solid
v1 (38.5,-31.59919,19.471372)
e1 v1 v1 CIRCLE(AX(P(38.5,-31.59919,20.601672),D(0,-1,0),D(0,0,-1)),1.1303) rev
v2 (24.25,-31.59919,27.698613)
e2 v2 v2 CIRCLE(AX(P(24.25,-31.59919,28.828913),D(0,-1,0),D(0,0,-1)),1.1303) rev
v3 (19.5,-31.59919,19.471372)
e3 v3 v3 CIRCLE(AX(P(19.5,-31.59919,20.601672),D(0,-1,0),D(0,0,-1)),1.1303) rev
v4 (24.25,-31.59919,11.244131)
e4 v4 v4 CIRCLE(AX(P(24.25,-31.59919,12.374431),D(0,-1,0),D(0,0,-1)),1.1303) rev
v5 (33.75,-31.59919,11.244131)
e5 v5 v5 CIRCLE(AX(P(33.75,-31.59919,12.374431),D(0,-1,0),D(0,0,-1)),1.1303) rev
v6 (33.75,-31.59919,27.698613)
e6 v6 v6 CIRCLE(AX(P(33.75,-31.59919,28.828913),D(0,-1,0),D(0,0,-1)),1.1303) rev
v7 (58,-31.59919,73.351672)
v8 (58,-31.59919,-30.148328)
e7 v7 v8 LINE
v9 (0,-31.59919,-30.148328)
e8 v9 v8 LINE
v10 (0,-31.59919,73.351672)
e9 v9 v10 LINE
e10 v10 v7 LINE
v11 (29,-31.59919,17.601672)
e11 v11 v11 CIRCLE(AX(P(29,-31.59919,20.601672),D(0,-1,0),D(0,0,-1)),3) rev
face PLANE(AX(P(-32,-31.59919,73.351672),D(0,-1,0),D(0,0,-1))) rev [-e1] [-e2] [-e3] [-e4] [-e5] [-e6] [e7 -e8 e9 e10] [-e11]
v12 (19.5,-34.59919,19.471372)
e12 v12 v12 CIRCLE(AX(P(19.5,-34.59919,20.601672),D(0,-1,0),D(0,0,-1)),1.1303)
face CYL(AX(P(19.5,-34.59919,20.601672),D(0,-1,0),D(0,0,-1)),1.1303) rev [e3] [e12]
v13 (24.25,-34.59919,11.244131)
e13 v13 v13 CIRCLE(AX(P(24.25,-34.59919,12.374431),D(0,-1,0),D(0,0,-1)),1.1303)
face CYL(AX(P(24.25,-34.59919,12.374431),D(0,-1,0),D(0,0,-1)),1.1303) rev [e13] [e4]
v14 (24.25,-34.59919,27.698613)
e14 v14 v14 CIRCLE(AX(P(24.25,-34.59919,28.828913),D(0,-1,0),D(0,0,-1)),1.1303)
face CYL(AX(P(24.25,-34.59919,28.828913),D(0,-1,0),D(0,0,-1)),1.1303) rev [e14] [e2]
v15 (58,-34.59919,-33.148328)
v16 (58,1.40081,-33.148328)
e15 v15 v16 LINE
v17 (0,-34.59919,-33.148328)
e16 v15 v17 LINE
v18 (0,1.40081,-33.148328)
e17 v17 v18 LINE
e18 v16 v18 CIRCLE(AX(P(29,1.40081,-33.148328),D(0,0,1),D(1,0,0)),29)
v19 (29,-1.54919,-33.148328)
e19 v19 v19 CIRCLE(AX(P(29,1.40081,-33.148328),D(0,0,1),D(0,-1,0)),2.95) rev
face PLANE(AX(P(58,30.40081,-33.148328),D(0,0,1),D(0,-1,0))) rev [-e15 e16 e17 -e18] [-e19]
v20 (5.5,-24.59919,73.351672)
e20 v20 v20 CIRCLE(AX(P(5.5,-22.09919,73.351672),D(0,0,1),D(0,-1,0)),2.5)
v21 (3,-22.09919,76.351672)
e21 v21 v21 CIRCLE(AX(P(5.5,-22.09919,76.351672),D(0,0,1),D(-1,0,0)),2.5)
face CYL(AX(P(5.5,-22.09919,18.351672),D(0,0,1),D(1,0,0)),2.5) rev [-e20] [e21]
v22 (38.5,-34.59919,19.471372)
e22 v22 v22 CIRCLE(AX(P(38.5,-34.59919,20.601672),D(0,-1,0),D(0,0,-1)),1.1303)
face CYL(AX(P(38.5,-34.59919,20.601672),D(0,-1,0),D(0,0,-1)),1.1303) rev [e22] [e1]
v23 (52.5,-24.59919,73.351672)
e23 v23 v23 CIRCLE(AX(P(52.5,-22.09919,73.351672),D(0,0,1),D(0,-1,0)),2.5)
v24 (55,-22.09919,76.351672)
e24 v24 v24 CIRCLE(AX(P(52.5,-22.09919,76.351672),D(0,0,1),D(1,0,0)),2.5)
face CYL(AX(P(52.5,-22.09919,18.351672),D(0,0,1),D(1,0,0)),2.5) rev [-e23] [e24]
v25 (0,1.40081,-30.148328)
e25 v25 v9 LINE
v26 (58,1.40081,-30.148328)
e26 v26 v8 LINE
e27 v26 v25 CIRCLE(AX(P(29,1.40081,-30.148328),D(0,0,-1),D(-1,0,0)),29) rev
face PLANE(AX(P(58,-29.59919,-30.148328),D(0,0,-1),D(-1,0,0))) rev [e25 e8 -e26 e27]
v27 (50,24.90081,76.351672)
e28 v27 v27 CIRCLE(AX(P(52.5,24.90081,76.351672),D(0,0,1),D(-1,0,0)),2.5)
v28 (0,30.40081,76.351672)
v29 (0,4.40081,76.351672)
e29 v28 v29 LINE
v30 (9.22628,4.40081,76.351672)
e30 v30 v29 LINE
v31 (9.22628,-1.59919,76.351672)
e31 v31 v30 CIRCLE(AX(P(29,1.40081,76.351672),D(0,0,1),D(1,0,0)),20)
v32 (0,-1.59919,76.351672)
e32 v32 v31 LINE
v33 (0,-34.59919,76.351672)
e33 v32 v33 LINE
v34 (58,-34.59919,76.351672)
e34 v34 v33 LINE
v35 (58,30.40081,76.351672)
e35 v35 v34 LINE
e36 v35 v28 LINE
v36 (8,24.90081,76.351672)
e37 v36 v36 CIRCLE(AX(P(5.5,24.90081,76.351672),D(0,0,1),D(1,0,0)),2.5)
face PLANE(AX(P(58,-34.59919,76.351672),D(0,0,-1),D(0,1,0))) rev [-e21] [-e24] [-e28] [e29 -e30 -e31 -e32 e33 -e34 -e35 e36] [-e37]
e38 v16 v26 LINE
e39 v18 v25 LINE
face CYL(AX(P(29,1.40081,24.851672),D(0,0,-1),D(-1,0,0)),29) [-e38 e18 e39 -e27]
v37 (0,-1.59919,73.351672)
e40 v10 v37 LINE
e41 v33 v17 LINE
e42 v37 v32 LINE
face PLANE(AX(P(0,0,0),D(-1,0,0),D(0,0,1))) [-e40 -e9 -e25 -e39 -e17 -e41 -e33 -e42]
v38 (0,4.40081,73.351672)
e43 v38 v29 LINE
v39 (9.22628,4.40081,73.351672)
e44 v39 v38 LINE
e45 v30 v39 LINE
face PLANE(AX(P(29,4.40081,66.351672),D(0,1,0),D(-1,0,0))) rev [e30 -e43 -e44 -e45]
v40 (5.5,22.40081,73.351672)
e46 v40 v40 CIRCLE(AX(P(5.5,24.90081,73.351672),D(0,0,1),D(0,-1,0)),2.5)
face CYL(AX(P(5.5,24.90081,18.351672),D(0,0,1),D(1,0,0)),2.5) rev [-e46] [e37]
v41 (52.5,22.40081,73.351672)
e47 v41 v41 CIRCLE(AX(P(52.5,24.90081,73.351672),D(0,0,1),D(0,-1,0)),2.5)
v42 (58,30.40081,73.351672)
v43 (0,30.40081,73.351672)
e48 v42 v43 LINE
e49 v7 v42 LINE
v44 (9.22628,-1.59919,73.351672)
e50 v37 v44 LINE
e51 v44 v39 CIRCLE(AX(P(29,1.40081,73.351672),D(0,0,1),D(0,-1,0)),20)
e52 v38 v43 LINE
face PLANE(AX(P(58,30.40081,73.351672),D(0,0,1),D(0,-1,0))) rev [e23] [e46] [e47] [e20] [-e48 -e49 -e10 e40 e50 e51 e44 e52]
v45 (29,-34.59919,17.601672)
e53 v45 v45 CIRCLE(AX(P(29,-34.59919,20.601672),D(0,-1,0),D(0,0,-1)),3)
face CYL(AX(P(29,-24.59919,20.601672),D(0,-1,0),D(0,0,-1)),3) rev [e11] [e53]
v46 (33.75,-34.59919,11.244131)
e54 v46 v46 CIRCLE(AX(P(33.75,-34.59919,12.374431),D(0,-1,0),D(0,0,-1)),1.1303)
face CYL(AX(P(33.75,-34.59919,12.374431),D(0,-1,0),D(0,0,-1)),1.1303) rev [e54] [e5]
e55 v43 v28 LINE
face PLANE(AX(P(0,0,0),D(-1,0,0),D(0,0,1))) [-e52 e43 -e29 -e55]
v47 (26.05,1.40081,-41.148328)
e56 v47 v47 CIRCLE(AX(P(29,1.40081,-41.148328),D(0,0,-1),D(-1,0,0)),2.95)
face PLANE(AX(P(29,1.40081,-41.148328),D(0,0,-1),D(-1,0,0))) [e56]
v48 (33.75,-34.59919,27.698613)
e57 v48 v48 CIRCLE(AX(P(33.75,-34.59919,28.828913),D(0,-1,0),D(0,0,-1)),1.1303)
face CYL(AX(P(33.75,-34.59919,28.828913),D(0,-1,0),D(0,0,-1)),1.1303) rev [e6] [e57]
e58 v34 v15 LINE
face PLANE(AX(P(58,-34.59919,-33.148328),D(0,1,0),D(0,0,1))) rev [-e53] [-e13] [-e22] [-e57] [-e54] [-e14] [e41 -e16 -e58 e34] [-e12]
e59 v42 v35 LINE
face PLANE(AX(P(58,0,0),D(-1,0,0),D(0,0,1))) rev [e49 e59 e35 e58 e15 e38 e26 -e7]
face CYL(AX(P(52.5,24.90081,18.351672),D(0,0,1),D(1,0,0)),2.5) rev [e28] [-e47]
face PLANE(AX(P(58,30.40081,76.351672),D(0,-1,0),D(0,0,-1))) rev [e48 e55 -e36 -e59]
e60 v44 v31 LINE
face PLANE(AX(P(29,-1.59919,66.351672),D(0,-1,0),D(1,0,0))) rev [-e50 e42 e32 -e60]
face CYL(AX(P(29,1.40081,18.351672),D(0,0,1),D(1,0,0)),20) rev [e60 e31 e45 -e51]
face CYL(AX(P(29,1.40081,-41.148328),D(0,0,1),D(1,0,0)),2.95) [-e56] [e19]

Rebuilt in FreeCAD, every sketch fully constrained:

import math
import FreeCAD as App
import Part
import Sketcher

doc = App.newDocument("Part")
body = doc.addObject("PartDesign::Body", "Body")

# Sketch on YZ plane
sketch1 = doc.addObject("Sketcher::SketchObject", "Sketch")
body.addObject(sketch1)
sketch1.AttachmentSupport = (doc.YZ_Plane, [""])
sketch1.MapMode = "FlatFace"
sketch1.addGeometry(Part.LineSegment(App.Vector(-29.59919, 73.351672, 0), App.Vector(30.40081, 73.351672, 0)), False)
sketch1.addGeometry(Part.LineSegment(App.Vector(30.40081, 73.351672, 0), App.Vector(30.40081, 76.351672, 0)), False)
sketch1.addGeometry(Part.LineSegment(App.Vector(30.40081, 76.351672, 0), App.Vector(-34.59919, 76.351672, 0)), False)
sketch1.addGeometry(Part.LineSegment(App.Vector(-34.59919, 76.351672, 0), App.Vector(-34.59919, -33.148328, 0)), False)
sketch1.addGeometry(Part.LineSegment(App.Vector(-34.59919, -33.148328, 0), App.Vector(30.40081, -33.148328, 0)), False)
sketch1.addGeometry(Part.LineSegment(App.Vector(30.40081, -33.148328, 0), App.Vector(30.40081, -30.148328, 0)), False)
sketch1.addGeometry(Part.LineSegment(App.Vector(30.40081, -30.148328, 0), App.Vector(-29.59919, -30.148328, 0)), False)
sketch1.addGeometry(Part.LineSegment(App.Vector(-29.59919, -30.148328, 0), App.Vector(-29.59919, 73.351672, 0)), False)
sketch1.addConstraint(Sketcher.Constraint("Coincident", 0, 2, 1, 1))
sketch1.addConstraint(Sketcher.Constraint("Coincident", 1, 2, 2, 1))
sketch1.addConstraint(Sketcher.Constraint("Coincident", 2, 2, 3, 1))
sketch1.addConstraint(Sketcher.Constraint("Coincident", 3, 2, 4, 1))
sketch1.addConstraint(Sketcher.Constraint("Coincident", 4, 2, 5, 1))
sketch1.addConstraint(Sketcher.Constraint("Coincident", 5, 2, 6, 1))
sketch1.addConstraint(Sketcher.Constraint("Coincident", 6, 2, 7, 1))
sketch1.addConstraint(Sketcher.Constraint("Coincident", 7, 2, 0, 1))
sketch1.addConstraint(Sketcher.Constraint("Horizontal", 0))
sketch1.addConstraint(Sketcher.Constraint("Vertical", 1))
sketch1.addConstraint(Sketcher.Constraint("Horizontal", 2))
sketch1.addConstraint(Sketcher.Constraint("Vertical", 3))
sketch1.addConstraint(Sketcher.Constraint("Horizontal", 4))
sketch1.addConstraint(Sketcher.Constraint("Vertical", 5))
sketch1.addConstraint(Sketcher.Constraint("Horizontal", 6))
sketch1.addConstraint(Sketcher.Constraint("Vertical", 7))
sketch1.addConstraint(Sketcher.Constraint("Vertical", 1, 2, 4, 2))
sketch1.addConstraint(Sketcher.Constraint("Equal", 1, 5))
sketch1.addConstraint(Sketcher.Constraint("DistanceX", 0, 1, 0, 2, 60.0))
sketch1.addConstraint(Sketcher.Constraint("DistanceX", 2, 2, 2, 1, 65.0))
sketch1.addConstraint(Sketcher.Constraint("DistanceY", 1, 1, 1, 2, 3.0))
sketch1.addConstraint(Sketcher.Constraint("DistanceY", 3, 2, 3, 1, 109.5))
sketch1.addConstraint(Sketcher.Constraint("DistanceX", -1, 1, 0, 2, 30.40081))
sketch1.addConstraint(Sketcher.Constraint("DistanceY", -1, 1, 0, 2, 73.351672))
pad1 = doc.addObject("PartDesign::Pad", "Pad")
body.addObject(pad1)
pad1.Profile = sketch1
pad1.Length = 58

# Sketch on XY plane
sketch2 = doc.addObject("Sketcher::SketchObject", "Sketch001")
body.addObject(sketch2)
sketch2.AttachmentSupport = (doc.XY_Plane, [""])
sketch2.MapMode = "FlatFace"
sketch2.AttachmentOffset = App.Placement(App.Vector(0, 0, 76.351672), App.Rotation())
sketch2.addGeometry(Part.Circle(App.Vector(5.5, 24.90081, 0), App.Vector(0, 0, 1), 2.5), False)
sketch2.addGeometry(Part.Circle(App.Vector(52.5, 24.90081, 0), App.Vector(0, 0, 1), 2.5), False)
sketch2.addGeometry(Part.Circle(App.Vector(52.5, -22.09919, 0), App.Vector(0, 0, 1), 2.5), False)
sketch2.addGeometry(Part.Circle(App.Vector(5.5, -22.09919, 0), App.Vector(0, 0, 1), 2.5), False)
sketch2.addGeometry(Part.Circle(App.Vector(29, 1.40081, 0), App.Vector(0, 0, 1), 20), False)
sketch2.addConstraint(Sketcher.Constraint("Equal", 0, 1))
sketch2.addConstraint(Sketcher.Constraint("Equal", 1, 2))
sketch2.addConstraint(Sketcher.Constraint("Equal", 2, 3))
sketch2.addConstraint(Sketcher.Constraint("Horizontal", 0, 3, 1, 3))
sketch2.addConstraint(Sketcher.Constraint("Horizontal", 2, 3, 3, 3))
sketch2.addConstraint(Sketcher.Constraint("Vertical", 1, 3, 2, 3))
sketch2.addConstraint(Sketcher.Constraint("Vertical", 0, 3, 3, 3))
sketch2.addConstraint(Sketcher.Constraint("Diameter", 0, 5.0))
sketch2.addConstraint(Sketcher.Constraint("Diameter", 4, 40.0))
sketch2.addConstraint(Sketcher.Constraint("DistanceX", -1, 1, 4, 3, 29.0))
sketch2.addConstraint(Sketcher.Constraint("DistanceX", 0, 3, 1, 3, 47.0))
sketch2.addConstraint(Sketcher.Constraint("DistanceY", 2, 3, 1, 3, 47.0))
sketch2.addConstraint(Sketcher.Constraint("DistanceX", -1, 1, 0, 3, 5.5))
sketch2.addConstraint(Sketcher.Constraint("DistanceY", 4, 3, 0, 3, 23.5))
sketch2.addConstraint(Sketcher.Constraint("DistanceY", -1, 1, 0, 3, 24.90081))
pocket1 = doc.addObject("PartDesign::Pocket", "Pocket")
body.addObject(pocket1)
pocket1.Profile = sketch2
pocket1.Length = 58

# Sketch on XY plane
sketch3 = doc.addObject("Sketcher::SketchObject", "Sketch002")
body.addObject(sketch3)
sketch3.AttachmentSupport = (doc.XY_Plane, [""])
sketch3.MapMode = "FlatFace"
sketch3.AttachmentOffset = App.Placement(App.Vector(0, 0, -33.148328), App.Rotation())
sketch3.addGeometry(Part.LineSegment(App.Vector(29, 30.40081, 0), App.Vector(58, 30.40081, 0)), False)
sketch3.addGeometry(Part.LineSegment(App.Vector(58, 30.40081, 0), App.Vector(58, 1.40081, 0)), False)
sketch3.addGeometry(Part.ArcOfCircle(Part.Circle(App.Vector(29, 1.40081, 0), App.Vector(0, 0, 1), 29), math.radians(0), math.radians(90)), False)
sketch3.addConstraint(Sketcher.Constraint("Coincident", 0, 2, 1, 1))
sketch3.addConstraint(Sketcher.Constraint("Tangent", 1, 2, 2, 1))
sketch3.addConstraint(Sketcher.Constraint("Tangent", 2, 2, 0, 1))
sketch3.addConstraint(Sketcher.Constraint("Horizontal", 0))
sketch3.addConstraint(Sketcher.Constraint("Vertical", 1))
sketch3.addConstraint(Sketcher.Constraint("Radius", 2, 29.0))
sketch3.addConstraint(Sketcher.Constraint("DistanceX", -1, 1, 2, 3, 29.0))
sketch3.addConstraint(Sketcher.Constraint("DistanceY", -1, 1, 2, 3, 1.40081))
pocket2 = doc.addObject("PartDesign::Pocket", "Pocket001")
body.addObject(pocket2)
pocket2.Profile = sketch3
pocket2.Length = 58
pocket2.Reversed = True

# Sketch on XY plane
sketch4 = doc.addObject("Sketcher::SketchObject", "Sketch003")
body.addObject(sketch4)
sketch4.AttachmentSupport = (doc.XY_Plane, [""])
sketch4.MapMode = "FlatFace"
sketch4.AttachmentOffset = App.Placement(App.Vector(0, 0, -33.148328), App.Rotation())
sketch4.addGeometry(Part.LineSegment(App.Vector(0, 30.40081, 0), App.Vector(29, 30.40081, 0)), False)
sketch4.addGeometry(Part.ArcOfCircle(Part.Circle(App.Vector(29, 1.40081, 0), App.Vector(0, 0, 1), 29), math.radians(90), math.radians(180)), False)
sketch4.addGeometry(Part.LineSegment(App.Vector(0, 1.40081, 0), App.Vector(0, 30.40081, 0)), False)
sketch4.addConstraint(Sketcher.Constraint("Tangent", 0, 2, 1, 1))
sketch4.addConstraint(Sketcher.Constraint("Tangent", 1, 2, 2, 1))
sketch4.addConstraint(Sketcher.Constraint("Coincident", 2, 2, 0, 1))
sketch4.addConstraint(Sketcher.Constraint("Horizontal", 0))
sketch4.addConstraint(Sketcher.Constraint("Vertical", 2))
sketch4.addConstraint(Sketcher.Constraint("PointOnObject", 1, 2, -2))
sketch4.addConstraint(Sketcher.Constraint("Radius", 1, 29.0))
sketch4.addConstraint(Sketcher.Constraint("DistanceY", -1, 1, 1, 3, 1.40081))
pocket3 = doc.addObject("PartDesign::Pocket", "Pocket002")
body.addObject(pocket3)
pocket3.Profile = sketch4
pocket3.Length = 58
pocket3.Reversed = True

# Sketch on XY plane
sketch5 = doc.addObject("Sketcher::SketchObject", "Sketch004")
body.addObject(sketch5)
sketch5.AttachmentSupport = (doc.XY_Plane, [""])
sketch5.MapMode = "FlatFace"
sketch5.AttachmentOffset = App.Placement(App.Vector(0, 0, -33.148328), App.Rotation())
sketch5.addGeometry(Part.Circle(App.Vector(29, 1.40081, 0), App.Vector(0, 0, 1), 2.95), False)
sketch5.addConstraint(Sketcher.Constraint("Diameter", 0, 5.9))
sketch5.addConstraint(Sketcher.Constraint("DistanceX", -1, 1, 0, 3, 29.0))
sketch5.addConstraint(Sketcher.Constraint("DistanceY", -1, 1, 0, 3, 1.40081))
pad2 = doc.addObject("PartDesign::Pad", "Pad001")
body.addObject(pad2)
pad2.Profile = sketch5
pad2.Length = 8
pad2.Reversed = True

# Sketch on XY plane
sketch6 = doc.addObject("Sketcher::SketchObject", "Sketch005")
body.addObject(sketch6)
sketch6.AttachmentSupport = (doc.XY_Plane, [""])
sketch6.MapMode = "FlatFace"
sketch6.AttachmentOffset = App.Placement(App.Vector(0, 0, 76.351672), App.Rotation())
sketch6.addGeometry(Part.LineSegment(App.Vector(0, 4.40081, 0), App.Vector(0, -1.59919, 0)), False)
sketch6.addGeometry(Part.LineSegment(App.Vector(0, -1.59919, 0), App.Vector(29, -1.59919, 0)), False)
sketch6.addGeometry(Part.LineSegment(App.Vector(29, -1.59919, 0), App.Vector(29, 4.40081, 0)), False)
sketch6.addGeometry(Part.LineSegment(App.Vector(29, 4.40081, 0), App.Vector(0, 4.40081, 0)), False)
sketch6.addConstraint(Sketcher.Constraint("Coincident", 0, 2, 1, 1))
sketch6.addConstraint(Sketcher.Constraint("Coincident", 1, 2, 2, 1))
sketch6.addConstraint(Sketcher.Constraint("Coincident", 2, 2, 3, 1))
sketch6.addConstraint(Sketcher.Constraint("Coincident", 3, 2, 0, 1))
sketch6.addConstraint(Sketcher.Constraint("Vertical", 0))
sketch6.addConstraint(Sketcher.Constraint("Horizontal", 1))
sketch6.addConstraint(Sketcher.Constraint("Vertical", 2))
sketch6.addConstraint(Sketcher.Constraint("Horizontal", 3))
sketch6.addConstraint(Sketcher.Constraint("PointOnObject", 0, 2, -2))
sketch6.addConstraint(Sketcher.Constraint("DistanceX", 1, 1, 1, 2, 29.0))
sketch6.addConstraint(Sketcher.Constraint("DistanceY", 0, 2, 0, 1, 6.0))
sketch6.addConstraint(Sketcher.Constraint("DistanceY", 0, 2, -1, 1, 1.59919))
pocket4 = doc.addObject("PartDesign::Pocket", "Pocket003")
body.addObject(pocket4)
pocket4.Profile = sketch6
pocket4.Length = 10

# Sketch on XZ plane
sketch7 = doc.addObject("Sketcher::SketchObject", "Sketch006")
body.addObject(sketch7)
sketch7.AttachmentSupport = (doc.XZ_Plane, [""])
sketch7.MapMode = "FlatFace"
sketch7.AttachmentOffset = App.Placement(App.Vector(0, 0, 34.59919), App.Rotation())
sketch7.addGeometry(Part.Circle(App.Vector(19.5, 20.601672, 0), App.Vector(0, 0, 1), 1.1303), False)
sketch7.addGeometry(Part.Circle(App.Vector(24.25, 28.828913, 0), App.Vector(0, 0, 1), 1.1303), False)
sketch7.addGeometry(Part.Circle(App.Vector(33.75, 28.828913, 0), App.Vector(0, 0, 1), 1.1303), False)
sketch7.addGeometry(Part.Circle(App.Vector(38.5, 20.601672, 0), App.Vector(0, 0, 1), 1.1303), False)
sketch7.addGeometry(Part.Circle(App.Vector(33.75, 12.374431, 0), App.Vector(0, 0, 1), 1.1303), False)
sketch7.addGeometry(Part.Circle(App.Vector(24.25, 12.374431, 0), App.Vector(0, 0, 1), 1.1303), False)
sketch7.addConstraint(Sketcher.Constraint("Equal", 0, 1))
sketch7.addConstraint(Sketcher.Constraint("Equal", 1, 2))
sketch7.addConstraint(Sketcher.Constraint("Equal", 2, 3))
sketch7.addConstraint(Sketcher.Constraint("Equal", 3, 4))
sketch7.addConstraint(Sketcher.Constraint("Equal", 4, 5))
sketch7.addConstraint(Sketcher.Constraint("Horizontal", 1, 3, 2, 3))
sketch7.addConstraint(Sketcher.Constraint("Horizontal", 0, 3, 3, 3))
sketch7.addConstraint(Sketcher.Constraint("Horizontal", 4, 3, 5, 3))
sketch7.addConstraint(Sketcher.Constraint("Vertical", 2, 3, 4, 3))
sketch7.addConstraint(Sketcher.Constraint("Vertical", 1, 3, 5, 3))
sketch7.addConstraint(Sketcher.Constraint("DistanceX", 0, 3, 3, 3, 19.0))
sketch7.addConstraint(Sketcher.Constraint("Diameter", 0, 2.2606))
sketch7.addConstraint(Sketcher.Constraint("DistanceX", -1, 1, 0, 3, 19.5))
sketch7.addConstraint(Sketcher.Constraint("DistanceX", 1, 3, 2, 3, 9.5))
sketch7.addConstraint(Sketcher.Constraint("DistanceX", -1, 1, 1, 3, 24.25))
sketch7.addConstraint(Sketcher.Constraint("DistanceY", -1, 1, 0, 3, 20.601672))
sketch7.addConstraint(Sketcher.Constraint("DistanceY", -1, 1, 4, 3, 12.374431))
sketch7.addConstraint(Sketcher.Constraint("DistanceY", 0, 3, 1, 3, 8.227241))
doc.recompute()
hole = doc.addObject("PartDesign::Hole", "Hole")
body.addObject(hole)
hole.Profile = sketch7
hole.ThreadType = "None"
hole.Diameter = 2.2606
hole.DepthType = "Dimension"
hole.Depth = 7.6
hole.DrillPoint = "Angled"
hole.DrillPointAngle = 118

# Sketch on XZ plane
sketch8 = doc.addObject("Sketcher::SketchObject", "Sketch007")
body.addObject(sketch8)
sketch8.AttachmentSupport = (doc.XZ_Plane, [""])
sketch8.MapMode = "FlatFace"
sketch8.AttachmentOffset = App.Placement(App.Vector(0, 0, 34.59919), App.Rotation())
sketch8.addGeometry(Part.Circle(App.Vector(29, 20.601672, 0), App.Vector(0, 0, 1), 3), False)
sketch8.addConstraint(Sketcher.Constraint("Diameter", 0, 6.0))
sketch8.addConstraint(Sketcher.Constraint("DistanceX", -1, 1, 0, 3, 29.0))
sketch8.addConstraint(Sketcher.Constraint("DistanceY", -1, 1, 0, 3, 20.601672))
pocket5 = doc.addObject("PartDesign::Pocket", "Pocket004")
body.addObject(pocket5)
pocket5.Profile = sketch8
pocket5.Length = 10

# Sketch on YZ plane
sketch9 = doc.addObject("Sketcher::SketchObject", "Sketch008")
body.addObject(sketch9)
sketch9.AttachmentSupport = (doc.YZ_Plane, [""])
sketch9.MapMode = "FlatFace"
sketch9.AttachmentOffset = App.Placement(App.Vector(0, 0, 58), App.Rotation())
sketch9.addGeometry(Part.LineSegment(App.Vector(-29.59919, 73.351672, 0), App.Vector(-31.59919, 73.351672, 0)), False)
sketch9.addGeometry(Part.LineSegment(App.Vector(-31.59919, 73.351672, 0), App.Vector(-31.59919, -30.148328, 0)), False)
sketch9.addGeometry(Part.LineSegment(App.Vector(-31.59919, -30.148328, 0), App.Vector(-29.59919, -30.148328, 0)), False)
sketch9.addGeometry(Part.LineSegment(App.Vector(-29.59919, -30.148328, 0), App.Vector(-29.59919, 73.351672, 0)), False)
sketch9.addConstraint(Sketcher.Constraint("Coincident", 0, 2, 1, 1))
sketch9.addConstraint(Sketcher.Constraint("Coincident", 1, 2, 2, 1))
sketch9.addConstraint(Sketcher.Constraint("Coincident", 2, 2, 3, 1))
sketch9.addConstraint(Sketcher.Constraint("Coincident", 3, 2, 0, 1))
sketch9.addConstraint(Sketcher.Constraint("Horizontal", 0))
sketch9.addConstraint(Sketcher.Constraint("Vertical", 1))
sketch9.addConstraint(Sketcher.Constraint("Horizontal", 2))
sketch9.addConstraint(Sketcher.Constraint("Vertical", 3))
sketch9.addConstraint(Sketcher.Constraint("DistanceX", 0, 2, 0, 1, 2.0))
sketch9.addConstraint(Sketcher.Constraint("DistanceY", 1, 2, 1, 1, 103.5))
sketch9.addConstraint(Sketcher.Constraint("DistanceX", 0, 2, -1, 1, 31.59919))
sketch9.addConstraint(Sketcher.Constraint("DistanceY", -1, 1, 0, 2, 73.351672))
pocket6 = doc.addObject("PartDesign::Pocket", "Pocket005")
body.addObject(pocket6)
pocket6.Profile = sketch9
pocket6.Length = 90

doc.recompute()
